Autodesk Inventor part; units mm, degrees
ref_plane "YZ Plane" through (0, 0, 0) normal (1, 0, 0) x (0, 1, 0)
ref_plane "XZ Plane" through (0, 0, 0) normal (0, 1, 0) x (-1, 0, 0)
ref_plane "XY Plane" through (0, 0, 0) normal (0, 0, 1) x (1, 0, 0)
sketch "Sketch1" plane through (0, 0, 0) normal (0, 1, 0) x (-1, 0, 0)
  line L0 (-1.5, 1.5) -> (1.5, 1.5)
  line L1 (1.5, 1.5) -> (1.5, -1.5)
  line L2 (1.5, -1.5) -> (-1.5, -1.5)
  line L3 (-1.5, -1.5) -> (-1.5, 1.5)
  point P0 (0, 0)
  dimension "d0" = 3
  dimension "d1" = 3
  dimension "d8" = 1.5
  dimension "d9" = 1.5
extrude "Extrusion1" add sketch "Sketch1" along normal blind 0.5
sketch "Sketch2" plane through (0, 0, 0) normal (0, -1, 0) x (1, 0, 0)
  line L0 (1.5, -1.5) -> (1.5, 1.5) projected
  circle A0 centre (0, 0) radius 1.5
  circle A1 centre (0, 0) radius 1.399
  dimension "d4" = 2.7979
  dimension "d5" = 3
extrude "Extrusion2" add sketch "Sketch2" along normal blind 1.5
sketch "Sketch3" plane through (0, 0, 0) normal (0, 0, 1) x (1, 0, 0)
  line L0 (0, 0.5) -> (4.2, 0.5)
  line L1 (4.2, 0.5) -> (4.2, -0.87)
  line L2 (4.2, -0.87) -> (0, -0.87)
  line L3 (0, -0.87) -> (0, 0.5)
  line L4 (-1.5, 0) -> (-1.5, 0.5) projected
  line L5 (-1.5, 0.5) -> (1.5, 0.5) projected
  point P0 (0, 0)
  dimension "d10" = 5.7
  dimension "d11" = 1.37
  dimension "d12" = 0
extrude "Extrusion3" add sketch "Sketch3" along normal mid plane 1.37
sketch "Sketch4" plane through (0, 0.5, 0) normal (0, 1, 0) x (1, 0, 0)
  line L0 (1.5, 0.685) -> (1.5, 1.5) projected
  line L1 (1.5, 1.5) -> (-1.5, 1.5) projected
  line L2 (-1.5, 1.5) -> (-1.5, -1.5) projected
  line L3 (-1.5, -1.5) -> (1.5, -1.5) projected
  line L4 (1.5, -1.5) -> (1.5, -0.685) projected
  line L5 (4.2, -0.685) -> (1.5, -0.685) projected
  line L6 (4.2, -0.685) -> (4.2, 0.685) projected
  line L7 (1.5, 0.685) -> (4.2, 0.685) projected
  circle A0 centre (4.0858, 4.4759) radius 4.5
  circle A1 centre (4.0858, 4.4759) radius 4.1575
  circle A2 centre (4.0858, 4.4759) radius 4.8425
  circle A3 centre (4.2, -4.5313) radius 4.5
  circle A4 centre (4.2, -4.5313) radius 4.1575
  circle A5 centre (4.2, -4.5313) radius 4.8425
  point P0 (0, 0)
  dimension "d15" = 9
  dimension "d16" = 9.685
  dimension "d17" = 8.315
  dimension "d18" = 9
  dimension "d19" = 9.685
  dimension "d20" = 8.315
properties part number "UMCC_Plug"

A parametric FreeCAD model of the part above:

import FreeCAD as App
import Part
import Sketcher


def add_polygon(sketch, points):
    """Adds a closed chain of lines whose ends are joined by coincident constraints."""
    first, n = sketch.GeometryCount, len(points)
    for a, b in zip(points, points[1:] + points[:1]):
        sketch.addGeometry(Part.LineSegment(App.Vector(*a, 0), App.Vector(*b, 0)), False)
    for i in range(n):
        sketch.addConstraint(Sketcher.Constraint("Coincident", first + i, 2, first + (i + 1) % n, 1))

doc = App.newDocument("Part")
body = doc.addObject("PartDesign::Body", "Body")

sketch1 = body.newObject("Sketcher::SketchObject", "Sketch")
sketch1.AttachmentSupport = (doc.getObject("XZ_Plane"), [""])
sketch1.MapMode = "FlatFace"
add_polygon(sketch1, [(-1.5, 1.5), (1.5, 1.5), (1.5, -1.5), (-1.5, -1.5)])
sketch1.addConstraint(Sketcher.Constraint("Horizontal", 0))
sketch1.addConstraint(Sketcher.Constraint("Vertical", 1))
sketch1.addConstraint(Sketcher.Constraint("Horizontal", 2))
sketch1.addConstraint(Sketcher.Constraint("Vertical", 3))
sketch1.addConstraint(Sketcher.Constraint("Symmetric", 0, 2, 2, 2, -1, 1))
sketch1.addConstraint(Sketcher.Constraint("Equal", 2, 1))
sketch1.addConstraint(Sketcher.Constraint("DistanceX", 0, 1, 0, 2, 3.0))
pad1 = body.newObject("PartDesign::Pad", "Pad")
pad1.Profile = sketch1
pad1.Length = 0.5
pad1.Reversed = True

sketch2 = body.newObject("Sketcher::SketchObject", "Sketch001")
sketch2.AttachmentSupport = (doc.getObject("XZ_Plane"), [""])
sketch2.MapMode = "FlatFace"
sketch2.addGeometry(Part.Circle(App.Vector(0, 0, 0), App.Vector(0, 0, 1), 1.5), False)
sketch2.addGeometry(Part.Circle(App.Vector(0, 0, 0), App.Vector(0, 0, 1), 1.4), False)
sketch2.addConstraint(Sketcher.Constraint("Coincident", 0, 3, -1, 1))
sketch2.addConstraint(Sketcher.Constraint("Coincident", 1, 3, -1, 1))
sketch2.addConstraint(Sketcher.Constraint("Diameter", 0, 3.0))
sketch2.addConstraint(Sketcher.Constraint("Diameter", 1, 2.798))
pad2 = body.newObject("PartDesign::Pad", "Pad001")
pad2.Profile = sketch2
pad2.Length = 1.5

sketch3 = body.newObject("Sketcher::SketchObject", "Sketch002")
sketch3.AttachmentSupport = (doc.getObject("XY_Plane"), [""])
sketch3.MapMode = "FlatFace"
add_polygon(sketch3, [(4.2, 0.5), (0, 0.5), (0, -0.9), (4.2, -0.9)])
sketch3.addConstraint(Sketcher.Constraint("Horizontal", 0))
sketch3.addConstraint(Sketcher.Constraint("Vertical", 1))
sketch3.addConstraint(Sketcher.Constraint("Horizontal", 2))
sketch3.addConstraint(Sketcher.Constraint("Vertical", 3))
sketch3.addConstraint(Sketcher.Constraint("PointOnObject", 0, 2, -2))
sketch3.addConstraint(Sketcher.Constraint("DistanceY", 1, 2, 1, 1, 1.37))
sketch3.addConstraint(Sketcher.Constraint("DistanceX", 0, 2, 0, 1, 4.2))
sketch3.addConstraint(Sketcher.Constraint("DistanceY", -1, 1, 0, 2, 0.5))
pad3 = body.newObject("PartDesign::Pad", "Pad002")
pad3.Profile = sketch3
pad3.Length = 1.37
pad3.Midplane = True

doc.recompute()
